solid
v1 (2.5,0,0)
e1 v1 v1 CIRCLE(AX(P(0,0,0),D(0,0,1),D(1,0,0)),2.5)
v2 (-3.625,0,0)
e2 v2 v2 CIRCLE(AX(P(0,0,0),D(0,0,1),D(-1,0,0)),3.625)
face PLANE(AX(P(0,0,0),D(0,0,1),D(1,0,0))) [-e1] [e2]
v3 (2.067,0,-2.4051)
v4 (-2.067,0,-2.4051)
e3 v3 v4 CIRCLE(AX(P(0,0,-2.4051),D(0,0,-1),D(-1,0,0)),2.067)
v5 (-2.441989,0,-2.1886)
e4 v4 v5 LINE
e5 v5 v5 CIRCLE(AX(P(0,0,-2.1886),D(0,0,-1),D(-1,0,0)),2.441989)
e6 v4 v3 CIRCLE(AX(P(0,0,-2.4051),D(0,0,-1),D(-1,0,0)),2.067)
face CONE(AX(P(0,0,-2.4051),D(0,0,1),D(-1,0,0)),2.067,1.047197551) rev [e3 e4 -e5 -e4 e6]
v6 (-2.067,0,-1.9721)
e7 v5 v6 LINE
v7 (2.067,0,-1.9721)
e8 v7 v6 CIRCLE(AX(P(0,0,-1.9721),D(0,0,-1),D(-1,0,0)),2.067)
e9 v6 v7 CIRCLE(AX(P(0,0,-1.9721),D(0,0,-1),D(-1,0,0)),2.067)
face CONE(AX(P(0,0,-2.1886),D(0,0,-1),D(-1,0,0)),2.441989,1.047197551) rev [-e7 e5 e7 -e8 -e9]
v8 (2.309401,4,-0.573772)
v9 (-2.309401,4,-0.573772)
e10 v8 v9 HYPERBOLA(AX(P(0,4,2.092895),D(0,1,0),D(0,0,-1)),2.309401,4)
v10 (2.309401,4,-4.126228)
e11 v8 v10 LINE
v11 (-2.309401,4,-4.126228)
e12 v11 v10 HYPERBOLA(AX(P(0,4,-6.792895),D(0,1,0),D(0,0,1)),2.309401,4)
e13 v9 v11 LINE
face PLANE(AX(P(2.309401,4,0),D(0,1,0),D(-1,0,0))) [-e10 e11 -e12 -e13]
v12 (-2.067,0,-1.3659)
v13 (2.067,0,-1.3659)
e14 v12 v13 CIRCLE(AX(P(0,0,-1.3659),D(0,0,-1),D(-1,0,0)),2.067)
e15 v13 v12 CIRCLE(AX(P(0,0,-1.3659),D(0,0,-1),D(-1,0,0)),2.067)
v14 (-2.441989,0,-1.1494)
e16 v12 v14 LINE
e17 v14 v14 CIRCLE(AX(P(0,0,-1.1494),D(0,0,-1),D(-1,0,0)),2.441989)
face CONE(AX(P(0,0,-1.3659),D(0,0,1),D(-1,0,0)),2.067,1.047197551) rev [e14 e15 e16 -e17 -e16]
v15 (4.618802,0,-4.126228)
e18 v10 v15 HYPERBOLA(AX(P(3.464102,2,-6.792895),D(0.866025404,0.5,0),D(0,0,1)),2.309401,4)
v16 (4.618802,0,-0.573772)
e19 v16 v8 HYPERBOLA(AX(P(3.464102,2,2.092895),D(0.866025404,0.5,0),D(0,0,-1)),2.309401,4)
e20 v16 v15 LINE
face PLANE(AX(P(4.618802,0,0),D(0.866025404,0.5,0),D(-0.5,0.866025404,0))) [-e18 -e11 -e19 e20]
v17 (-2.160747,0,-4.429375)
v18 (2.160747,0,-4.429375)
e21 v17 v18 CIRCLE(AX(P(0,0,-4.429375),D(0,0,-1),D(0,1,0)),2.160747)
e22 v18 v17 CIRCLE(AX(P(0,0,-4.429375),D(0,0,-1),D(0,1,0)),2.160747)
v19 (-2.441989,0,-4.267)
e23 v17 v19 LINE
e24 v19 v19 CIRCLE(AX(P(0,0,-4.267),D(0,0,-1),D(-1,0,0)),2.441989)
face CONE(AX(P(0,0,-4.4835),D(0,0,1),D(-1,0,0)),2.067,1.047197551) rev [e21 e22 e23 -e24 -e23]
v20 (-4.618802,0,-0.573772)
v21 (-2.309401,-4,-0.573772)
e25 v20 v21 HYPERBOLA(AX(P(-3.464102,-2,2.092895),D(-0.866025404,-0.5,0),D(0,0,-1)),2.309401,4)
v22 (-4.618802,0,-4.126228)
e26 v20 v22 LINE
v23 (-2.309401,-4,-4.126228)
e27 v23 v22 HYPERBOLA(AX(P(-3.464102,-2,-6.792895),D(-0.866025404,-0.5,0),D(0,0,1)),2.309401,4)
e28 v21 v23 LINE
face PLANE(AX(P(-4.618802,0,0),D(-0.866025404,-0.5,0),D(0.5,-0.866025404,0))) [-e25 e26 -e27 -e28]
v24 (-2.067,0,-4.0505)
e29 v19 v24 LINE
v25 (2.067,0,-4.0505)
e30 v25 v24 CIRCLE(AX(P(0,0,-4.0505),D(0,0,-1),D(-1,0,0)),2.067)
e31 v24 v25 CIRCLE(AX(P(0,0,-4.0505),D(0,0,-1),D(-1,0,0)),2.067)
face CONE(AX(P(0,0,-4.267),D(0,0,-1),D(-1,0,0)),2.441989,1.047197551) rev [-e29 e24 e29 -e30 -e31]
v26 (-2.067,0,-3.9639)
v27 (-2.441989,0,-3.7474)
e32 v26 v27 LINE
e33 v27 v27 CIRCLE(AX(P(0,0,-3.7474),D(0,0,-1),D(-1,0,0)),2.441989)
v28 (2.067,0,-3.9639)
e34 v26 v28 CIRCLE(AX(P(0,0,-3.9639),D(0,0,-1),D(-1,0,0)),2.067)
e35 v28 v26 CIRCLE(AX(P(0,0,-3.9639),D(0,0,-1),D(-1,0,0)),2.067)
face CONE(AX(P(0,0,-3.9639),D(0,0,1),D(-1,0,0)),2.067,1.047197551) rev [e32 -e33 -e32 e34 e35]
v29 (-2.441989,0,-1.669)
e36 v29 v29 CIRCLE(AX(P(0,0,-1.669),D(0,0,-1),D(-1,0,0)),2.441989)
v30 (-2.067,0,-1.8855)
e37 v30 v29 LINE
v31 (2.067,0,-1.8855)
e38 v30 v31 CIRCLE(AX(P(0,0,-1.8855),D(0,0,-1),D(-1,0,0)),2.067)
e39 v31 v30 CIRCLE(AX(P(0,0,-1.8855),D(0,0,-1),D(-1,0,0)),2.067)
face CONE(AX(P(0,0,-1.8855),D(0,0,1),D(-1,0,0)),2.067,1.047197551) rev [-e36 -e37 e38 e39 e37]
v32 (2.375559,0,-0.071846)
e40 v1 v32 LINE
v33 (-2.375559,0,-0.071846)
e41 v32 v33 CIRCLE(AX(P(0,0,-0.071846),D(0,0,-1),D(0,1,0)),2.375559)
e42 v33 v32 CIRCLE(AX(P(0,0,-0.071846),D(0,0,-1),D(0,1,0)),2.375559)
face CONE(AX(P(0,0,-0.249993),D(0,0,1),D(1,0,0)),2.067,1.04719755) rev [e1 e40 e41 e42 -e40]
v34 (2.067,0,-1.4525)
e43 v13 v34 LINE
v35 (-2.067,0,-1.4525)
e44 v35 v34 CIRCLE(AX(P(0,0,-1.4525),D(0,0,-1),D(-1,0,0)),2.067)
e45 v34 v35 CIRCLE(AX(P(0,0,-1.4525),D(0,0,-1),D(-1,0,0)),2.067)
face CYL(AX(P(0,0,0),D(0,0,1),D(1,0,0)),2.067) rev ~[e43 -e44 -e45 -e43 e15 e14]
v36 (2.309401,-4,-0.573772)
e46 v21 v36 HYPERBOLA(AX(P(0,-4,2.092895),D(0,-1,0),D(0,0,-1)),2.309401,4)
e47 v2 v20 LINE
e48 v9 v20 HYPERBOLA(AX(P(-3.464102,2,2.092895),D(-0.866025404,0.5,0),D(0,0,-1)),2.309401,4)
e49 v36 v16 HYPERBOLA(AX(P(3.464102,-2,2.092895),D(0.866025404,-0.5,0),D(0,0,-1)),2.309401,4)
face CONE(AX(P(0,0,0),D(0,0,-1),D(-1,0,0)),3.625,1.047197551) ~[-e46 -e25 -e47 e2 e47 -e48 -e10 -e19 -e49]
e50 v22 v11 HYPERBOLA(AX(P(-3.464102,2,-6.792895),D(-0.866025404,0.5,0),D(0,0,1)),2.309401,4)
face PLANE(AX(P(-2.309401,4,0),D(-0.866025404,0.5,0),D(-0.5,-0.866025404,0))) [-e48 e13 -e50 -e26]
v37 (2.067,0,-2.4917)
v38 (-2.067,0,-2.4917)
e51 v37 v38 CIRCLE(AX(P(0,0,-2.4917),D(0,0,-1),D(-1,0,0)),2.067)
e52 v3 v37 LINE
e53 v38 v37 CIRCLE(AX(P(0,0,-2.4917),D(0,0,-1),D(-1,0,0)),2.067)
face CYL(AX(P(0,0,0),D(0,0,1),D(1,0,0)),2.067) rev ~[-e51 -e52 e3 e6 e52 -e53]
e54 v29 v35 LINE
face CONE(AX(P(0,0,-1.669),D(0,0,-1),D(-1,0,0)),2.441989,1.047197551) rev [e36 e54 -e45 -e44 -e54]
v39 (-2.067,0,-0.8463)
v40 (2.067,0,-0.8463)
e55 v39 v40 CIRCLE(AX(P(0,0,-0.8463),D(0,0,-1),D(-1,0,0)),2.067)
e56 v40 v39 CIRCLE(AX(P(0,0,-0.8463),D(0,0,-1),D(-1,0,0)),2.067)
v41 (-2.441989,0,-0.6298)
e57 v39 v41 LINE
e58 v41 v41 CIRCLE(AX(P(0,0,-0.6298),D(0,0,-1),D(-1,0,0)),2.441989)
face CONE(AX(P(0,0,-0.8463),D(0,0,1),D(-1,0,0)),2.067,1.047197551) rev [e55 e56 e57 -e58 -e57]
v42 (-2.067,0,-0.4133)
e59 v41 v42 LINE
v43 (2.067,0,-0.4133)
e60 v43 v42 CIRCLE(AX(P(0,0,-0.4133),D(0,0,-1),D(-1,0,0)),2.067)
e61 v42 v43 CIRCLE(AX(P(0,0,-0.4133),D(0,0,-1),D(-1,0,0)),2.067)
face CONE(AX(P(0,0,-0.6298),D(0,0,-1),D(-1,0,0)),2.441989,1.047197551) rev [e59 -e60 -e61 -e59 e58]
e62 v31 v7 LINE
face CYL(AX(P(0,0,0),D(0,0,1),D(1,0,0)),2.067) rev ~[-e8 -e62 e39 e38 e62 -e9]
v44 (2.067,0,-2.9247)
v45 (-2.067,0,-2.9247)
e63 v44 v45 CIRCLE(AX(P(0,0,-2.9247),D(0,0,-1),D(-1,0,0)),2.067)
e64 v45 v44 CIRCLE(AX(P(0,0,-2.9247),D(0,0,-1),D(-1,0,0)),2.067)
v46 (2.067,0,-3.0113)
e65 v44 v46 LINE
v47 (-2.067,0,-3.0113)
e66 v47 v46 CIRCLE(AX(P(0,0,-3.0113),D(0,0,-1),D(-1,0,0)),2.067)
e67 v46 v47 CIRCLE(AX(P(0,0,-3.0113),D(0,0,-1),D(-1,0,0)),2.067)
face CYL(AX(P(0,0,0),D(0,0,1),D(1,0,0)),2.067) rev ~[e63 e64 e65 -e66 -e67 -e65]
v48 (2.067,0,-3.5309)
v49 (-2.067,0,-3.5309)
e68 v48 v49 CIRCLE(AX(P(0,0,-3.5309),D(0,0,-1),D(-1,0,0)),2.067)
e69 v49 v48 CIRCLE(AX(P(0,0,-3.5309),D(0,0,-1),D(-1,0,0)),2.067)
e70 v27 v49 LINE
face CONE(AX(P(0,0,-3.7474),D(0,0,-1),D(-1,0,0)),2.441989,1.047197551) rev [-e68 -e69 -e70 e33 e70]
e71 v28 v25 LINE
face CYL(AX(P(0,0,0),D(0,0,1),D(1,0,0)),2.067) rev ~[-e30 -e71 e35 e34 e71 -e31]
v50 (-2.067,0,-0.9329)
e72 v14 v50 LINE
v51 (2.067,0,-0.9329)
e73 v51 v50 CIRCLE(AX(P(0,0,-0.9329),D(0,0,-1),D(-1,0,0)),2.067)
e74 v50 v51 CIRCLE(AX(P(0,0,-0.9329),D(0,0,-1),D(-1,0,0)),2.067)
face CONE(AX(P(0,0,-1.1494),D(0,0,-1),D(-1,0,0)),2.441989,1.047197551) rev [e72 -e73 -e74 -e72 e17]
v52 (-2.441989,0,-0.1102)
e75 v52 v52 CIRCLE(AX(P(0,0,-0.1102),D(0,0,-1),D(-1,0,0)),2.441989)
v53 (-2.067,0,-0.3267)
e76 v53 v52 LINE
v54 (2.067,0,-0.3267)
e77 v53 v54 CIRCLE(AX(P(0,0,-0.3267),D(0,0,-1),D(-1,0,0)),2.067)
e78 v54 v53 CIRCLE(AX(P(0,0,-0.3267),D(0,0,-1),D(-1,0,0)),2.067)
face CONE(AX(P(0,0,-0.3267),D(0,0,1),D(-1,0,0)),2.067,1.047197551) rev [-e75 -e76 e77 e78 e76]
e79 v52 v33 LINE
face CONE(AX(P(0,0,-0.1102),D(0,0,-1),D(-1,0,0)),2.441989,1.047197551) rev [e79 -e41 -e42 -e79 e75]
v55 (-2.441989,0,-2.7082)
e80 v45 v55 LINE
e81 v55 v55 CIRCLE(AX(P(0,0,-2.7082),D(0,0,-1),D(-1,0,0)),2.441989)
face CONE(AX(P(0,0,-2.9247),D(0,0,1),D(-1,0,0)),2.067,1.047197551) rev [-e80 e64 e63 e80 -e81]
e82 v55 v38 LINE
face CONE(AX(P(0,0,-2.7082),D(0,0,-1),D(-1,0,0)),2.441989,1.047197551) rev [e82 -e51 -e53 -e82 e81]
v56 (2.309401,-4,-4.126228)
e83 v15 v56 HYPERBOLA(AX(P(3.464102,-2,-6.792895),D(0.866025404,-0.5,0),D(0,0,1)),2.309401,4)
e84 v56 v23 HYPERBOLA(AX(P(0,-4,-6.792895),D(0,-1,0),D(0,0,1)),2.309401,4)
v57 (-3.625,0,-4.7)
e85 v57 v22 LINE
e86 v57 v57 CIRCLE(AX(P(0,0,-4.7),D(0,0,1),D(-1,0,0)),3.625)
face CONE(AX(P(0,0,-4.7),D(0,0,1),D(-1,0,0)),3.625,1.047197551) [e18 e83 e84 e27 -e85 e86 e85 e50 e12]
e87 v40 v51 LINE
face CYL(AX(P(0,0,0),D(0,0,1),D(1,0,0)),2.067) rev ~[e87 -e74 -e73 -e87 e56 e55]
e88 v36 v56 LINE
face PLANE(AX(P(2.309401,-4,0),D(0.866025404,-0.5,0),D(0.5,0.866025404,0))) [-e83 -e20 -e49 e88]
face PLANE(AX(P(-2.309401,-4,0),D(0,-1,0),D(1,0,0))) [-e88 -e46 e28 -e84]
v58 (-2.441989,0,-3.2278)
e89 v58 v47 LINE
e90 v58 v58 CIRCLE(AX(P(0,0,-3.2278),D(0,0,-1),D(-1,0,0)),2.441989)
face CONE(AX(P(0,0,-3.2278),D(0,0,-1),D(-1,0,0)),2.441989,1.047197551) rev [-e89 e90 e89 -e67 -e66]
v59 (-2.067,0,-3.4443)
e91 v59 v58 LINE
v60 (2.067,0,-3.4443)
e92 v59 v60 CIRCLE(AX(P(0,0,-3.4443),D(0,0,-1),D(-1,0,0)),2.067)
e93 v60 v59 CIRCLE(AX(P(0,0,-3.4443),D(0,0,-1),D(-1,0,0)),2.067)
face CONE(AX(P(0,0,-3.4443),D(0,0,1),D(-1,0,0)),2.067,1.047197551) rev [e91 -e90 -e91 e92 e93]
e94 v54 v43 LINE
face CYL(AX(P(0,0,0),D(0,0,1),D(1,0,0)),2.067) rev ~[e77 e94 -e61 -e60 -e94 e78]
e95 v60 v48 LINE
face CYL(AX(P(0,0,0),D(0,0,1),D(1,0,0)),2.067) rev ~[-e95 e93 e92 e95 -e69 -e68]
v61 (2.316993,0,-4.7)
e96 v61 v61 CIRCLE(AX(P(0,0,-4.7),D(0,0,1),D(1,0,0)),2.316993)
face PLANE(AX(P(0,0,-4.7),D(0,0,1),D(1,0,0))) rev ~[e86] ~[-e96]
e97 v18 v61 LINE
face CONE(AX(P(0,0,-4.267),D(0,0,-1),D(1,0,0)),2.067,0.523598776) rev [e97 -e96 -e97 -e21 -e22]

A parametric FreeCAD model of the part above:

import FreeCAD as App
import Part
import Sketcher

V = App.Vector
Q = App.Units.Quantity


def edges_at(feature, points):
    """Names of the edges that pass closest to the given points."""
    edges = feature.Shape.Edges
    near = lambda p: min(range(len(edges)), key=lambda i: edges[i].distToShape(Part.Vertex(*p))[0])
    return sorted({f"Edge{near(p) + 1}" for p in points})

doc = App.newDocument("Part")
body = doc.addObject("PartDesign::Body", "Body")

sketch1 = body.newObject("Sketcher::SketchObject", "Sketch")
sketch1.AttachmentSupport = (doc.getObject("XY_Plane"), [""])
sketch1.MapMode = "FlatFace"
sketch1.addGeometry([
    Part.LineSegment(V(4.6, 0, 0), V(2.3, 4, 0)),
    Part.LineSegment(V(2.3, 4, 0), V(-2.3, 4, 0)),
    Part.LineSegment(V(-2.3, 4, 0), V(-4.6, 0, 0)),
    Part.LineSegment(V(-4.6, 0, 0), V(-2.3, -4, 0)),
    Part.LineSegment(V(-2.3, -4, 0), V(2.3, -4, 0)),
    Part.LineSegment(V(2.3, -4, 0), V(4.6, 0, 0)),
    Part.Circle(V(0, 0, 0), V(0, 0, 1), 2.1),
], False)
sketch1.addConstraint([
    Sketcher.Constraint("Coincident", 0, 2, 1, 1),
    Sketcher.Constraint("Coincident", 1, 2, 2, 1),
    Sketcher.Constraint("Coincident", 2, 2, 3, 1),
    Sketcher.Constraint("Coincident", 3, 2, 4, 1),
    Sketcher.Constraint("Coincident", 4, 2, 5, 1),
    Sketcher.Constraint("Coincident", 5, 2, 0, 1),
    Sketcher.Constraint("Horizontal", 1),
    Sketcher.Constraint("Horizontal", 4),
    Sketcher.Constraint("Coincident", 6, 3, -1, 1),
    Sketcher.Constraint("Symmetric", 0, 2, 3, 2, -1, 1),
    Sketcher.Constraint("Symmetric", 2, 2, 5, 2, -1, 1),
    Sketcher.Constraint("PointOnObject", 2, 2, -1),
    Sketcher.Constraint("Parallel", 2, 5),
    Sketcher.Constraint("Vertical", 1, 2, 3, 2),
    Sketcher.Constraint("Angle", 0, Q("120 deg")),
    Sketcher.Constraint("Diameter", 6, 4.134),
    Sketcher.Constraint("DistanceY", -1, 1, 0, 2, 4.0),
    Sketcher.Constraint("DistanceX", -1, 1, 0, 2, 2.309401),
])
pad1 = body.newObject("PartDesign::Pad", "Pad")
pad1.Profile = sketch1
pad1.Length = 4.7
pad1.Reversed = True

sketch2 = body.newObject("Sketcher::SketchObject", "Sketch001")
sketch2.AttachmentSupport = (doc.getObject("XZ_Plane"), [""])
sketch2.MapMode = "FlatFace"
sketch2.addGeometry([
    Part.LineSegment(V(-3.6, -4.7, 0), V(-4.6, -4.7, 0)),
    Part.LineSegment(V(-4.6, -4.7, 0), V(-4.6, -4.1, 0)),
    Part.LineSegment(V(-4.6, -4.1, 0), V(-3.6, -4.7, 0)),
    Part.LineSegment(V(-4.6, -0.6, 0), V(-4.6, 0, 0)),
    Part.LineSegment(V(-4.6, 0, 0), V(-3.6, 0, 0)),
    Part.LineSegment(V(-3.6, 0, 0), V(-4.6, -0.6, 0)),
], False)
sketch2.addConstraint([
    Sketcher.Constraint("Coincident", 0, 2, 1, 1),
    Sketcher.Constraint("Coincident", 1, 2, 2, 1),
    Sketcher.Constraint("Coincident", 2, 2, 0, 1),
    Sketcher.Constraint("Coincident", 3, 2, 4, 1),
    Sketcher.Constraint("Coincident", 4, 2, 5, 1),
    Sketcher.Constraint("Coincident", 5, 2, 3, 1),
    Sketcher.Constraint("Horizontal", 0),
    Sketcher.Constraint("Vertical", 1),
    Sketcher.Constraint("Vertical", 3),
    Sketcher.Constraint("Horizontal", 4),
    Sketcher.Constraint("PointOnObject", 3, 2, -1),
    Sketcher.Constraint("Vertical", 1, 2, 3, 2),
    Sketcher.Constraint("Vertical", 2, 2, 4, 2),
    Sketcher.Constraint("Equal", 1, 3),
    Sketcher.Constraint("Angle", 2, Q("-30 deg")),
    Sketcher.Constraint("DistanceY", 0, 2, -1, 1, 4.7),
    Sketcher.Constraint("DistanceX", 2, 2, -1, 1, 3.625),
    Sketcher.Constraint("DistanceY", 1, 1, 1, 2, 0.573772),
])
groove = body.newObject("PartDesign::Groove", "Groove")
groove.Profile = sketch2
groove.ReferenceAxis = (sketch2, ["V_Axis"])
groove.Angle = 360
doc.recompute()

chamfer = body.newObject("PartDesign::Chamfer", "Chamfer")
chamfer.Base = (groove, edges_at(groove, [(-2.067, 0, -4.7)]))
chamfer.ChamferType = "Two distances"
chamfer.Size = 0.433
chamfer.Size2 = 0.249993
chamfer.FlipDirection = True
doc.recompute()

chamfer2 = body.newObject("PartDesign::Chamfer", "Chamfer001")
chamfer2.Base = (chamfer, edges_at(chamfer, [(-2.067, 0, 0)]))
chamfer2.ChamferType = "Two distances"
chamfer2.Size = 0.433
chamfer2.Size2 = 0.249993
chamfer2.FlipDirection = True

sketch3 = body.newObject("Sketcher::SketchObject", "Sketch002")
sketch3.AttachmentSupport = (doc.getObject("XZ_Plane"), [""])
sketch3.MapMode = "FlatFace"
sketch3.addGeometry([
    Part.LineSegment(V(-2.44, -4.27, 0), V(-2.07, -4.05, 0)),
    Part.LineSegment(V(-2.07, -4.05, 0), V(-1.63, -4.05, 0)),
    Part.LineSegment(V(-1.63, -4.05, 0), V(-1.63, -4.48, 0)),
    Part.LineSegment(V(-1.63, -4.48, 0), V(-2.07, -4.48, 0)),
    Part.LineSegment(V(-2.07, -4.48, 0), V(-2.44, -4.27, 0)),
], False)
sketch3.addConstraint([
    Sketcher.Constraint("Coincident", 0, 2, 1, 1),
    Sketcher.Constraint("Coincident", 1, 2, 2, 1),
    Sketcher.Constraint("Coincident", 2, 2, 3, 1),
    Sketcher.Constraint("Coincident", 3, 2, 4, 1),
    Sketcher.Constraint("Coincident", 4, 2, 0, 1),
    Sketcher.Constraint("Horizontal", 1),
    Sketcher.Constraint("Vertical", 2),
    Sketcher.Constraint("Horizontal", 3),
    Sketcher.Constraint("Vertical", 0, 2, 3, 2),
    Sketcher.Constraint("Equal", 3, 2),
    Sketcher.Constraint("Equal", 0, 4),
    Sketcher.Constraint("Angle", 0, Q("30 deg")),
    Sketcher.Constraint("DistanceX", 1, 1, 1, 2, 0.433),
    Sketcher.Constraint("DistanceX", 0, 2, -1, 1, 2.067),
    Sketcher.Constraint("DistanceY", 4, 2, -1, 1, 4.267),
])
groove2 = body.newObject("PartDesign::Groove", "Groove001")
groove2.Profile = sketch3
groove2.ReferenceAxis = (sketch3, ["V_Axis"])
groove2.Angle = 360
doc.recompute()

linearpattern = body.newObject("PartDesign::LinearPattern", "LinearPattern")
linearpattern.Originals = [groove2]
linearpattern.Direction = (doc.getObject("Z_Axis"), [""])
linearpattern.Mode = "offset"
linearpattern.Offset = 0.5196
linearpattern.Occurrences = 9
body.Tip = linearpattern

doc.recompute()
